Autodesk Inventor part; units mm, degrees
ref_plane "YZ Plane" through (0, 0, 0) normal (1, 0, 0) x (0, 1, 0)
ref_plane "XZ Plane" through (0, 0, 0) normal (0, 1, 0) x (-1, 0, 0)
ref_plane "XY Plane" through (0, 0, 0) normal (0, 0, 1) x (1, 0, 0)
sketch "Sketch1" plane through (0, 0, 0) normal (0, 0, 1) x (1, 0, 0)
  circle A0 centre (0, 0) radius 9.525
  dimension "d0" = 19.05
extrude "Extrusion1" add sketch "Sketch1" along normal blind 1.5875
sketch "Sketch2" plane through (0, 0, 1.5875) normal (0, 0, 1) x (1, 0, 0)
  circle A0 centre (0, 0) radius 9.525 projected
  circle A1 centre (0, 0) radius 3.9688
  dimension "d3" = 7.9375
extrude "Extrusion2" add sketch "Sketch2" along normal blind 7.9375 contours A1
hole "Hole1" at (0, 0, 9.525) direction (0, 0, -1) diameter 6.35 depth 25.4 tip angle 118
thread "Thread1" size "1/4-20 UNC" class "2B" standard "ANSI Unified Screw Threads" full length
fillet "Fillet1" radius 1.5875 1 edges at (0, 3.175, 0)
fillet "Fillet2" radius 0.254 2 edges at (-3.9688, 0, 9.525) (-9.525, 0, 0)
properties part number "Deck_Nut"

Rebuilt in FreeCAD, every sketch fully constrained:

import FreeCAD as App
import Part
import Sketcher
from FreeCAD import Vector
Q = App.Units.Quantity


def edges_at(feature, points):
    """Names of the edges that pass closest to the given points."""
    edges = feature.Shape.Edges
    near = lambda p: min(range(len(edges)), key=lambda i: edges[i].distToShape(Part.Vertex(*p))[0])
    return sorted({f"Edge{near(p) + 1}" for p in points})

doc = App.newDocument("Part")
params = doc.addObject("Spreadsheet::Sheet", "Params")
for row, (alias, value) in enumerate([
    ("sketch1_diameter", "0.75 in"),
    ("pad1_length", "0.0625 in"),
    ("sketch2_diameter", "0.3125 in"),
    ("pad2_length", "0.3125 in"),
    ("sketch3_diameter", "0.25 in"),
    ("hole_diameter", "0.25 in"),
    ("hole_depth", "1 in"),
    ("fillet_radius", "0.0625 in"),
    ("fillet2_radius", "0.01 in"),
], start=1):
    params.set(f"A{row}", alias)
    params.set(f"B{row}", "=" + value)
    params.setAlias(f"B{row}", alias)

body = doc.addObject("PartDesign::Body", "Body")

# Sketch on XY plane
sketch1 = body.newObject("Sketcher::SketchObject", "Sketch")
sketch1.AttachmentSupport = (doc.getObject("XY_Plane"), [""])
sketch1.MapMode = "FlatFace"
sketch1.addGeometry(Part.Circle(Vector(0, 0, 0), Vector(0, 0, 1), 10), False)
sketch1.addConstraint([
    Sketcher.Constraint("Coincident", 0, 3, -1, 1),
    Sketcher.Constraint("Diameter", 0, Q("0.75 in")),
])
sketch1.setExpression("Constraints[1]", "Params.sketch1_diameter")
pad1 = body.newObject("PartDesign::Pad", "Pad")
pad1.Profile = sketch1
pad1.setExpression("Length", "Params.pad1_length")

# Sketch on XY plane
sketch2 = body.newObject("Sketcher::SketchObject", "Sketch001")
sketch2.AttachmentSupport = (doc.getObject("XY_Plane"), [""])
sketch2.MapMode = "FlatFace"
sketch2.AttachmentOffset = App.Placement(Vector(0, 0, 0.0625 * 25.4), App.Rotation())
sketch2.addGeometry(Part.Circle(Vector(0, 0, 0), Vector(0, 0, 1), 4), False)
sketch2.addConstraint([
    Sketcher.Constraint("Coincident", 0, 3, -1, 1),
    Sketcher.Constraint("Diameter", 0, Q("0.3125 in")),
])
sketch2.setExpression("Constraints[1]", "Params.sketch2_diameter")
pad2 = body.newObject("PartDesign::Pad", "Pad001")
pad2.Profile = sketch2
pad2.setExpression("Length", "Params.pad2_length")

# Sketch on XY plane
sketch3 = body.newObject("Sketcher::SketchObject", "Sketch002")
sketch3.AttachmentSupport = (doc.getObject("XY_Plane"), [""])
sketch3.MapMode = "FlatFace"
sketch3.AttachmentOffset = App.Placement(Vector(0, 0, 0.375 * 25.4), App.Rotation())
sketch3.addGeometry(Part.Circle(Vector(0, 0, 0), Vector(0, 0, 1), 3.2), False)
sketch3.addConstraint([
    Sketcher.Constraint("Coincident", 0, 3, -1, 1),
    Sketcher.Constraint("Diameter", 0, Q("0.25 in")),
])
sketch3.setExpression("Constraints[1]", "Params.sketch3_diameter")
doc.recompute()
hole = body.newObject("PartDesign::Hole", "Hole")
hole.Profile = sketch3
hole.ThreadType = "None"
hole.setExpression("Diameter", "Params.hole_diameter")
hole.DepthType = "Dimension"
hole.setExpression("Depth", "Params.hole_depth")
hole.DrillPoint = "Angled"
hole.DrillPointAngle = 118
doc.recompute()

fillet = body.newObject("PartDesign::Fillet", "Fillet")
fillet.Base = (hole, edges_at(hole, [(0, 3.175, 0)]))
fillet.setExpression("Radius", "Params.fillet_radius")
doc.recompute()

fillet2 = body.newObject("PartDesign::Fillet", "Fillet001")
fillet2.Base = (fillet, edges_at(fillet, [(-3.969, 0, 9.525), (-9.525, 0, 0)]))
fillet2.setExpression("Radius", "Params.fillet2_radius")

doc.recompute()
